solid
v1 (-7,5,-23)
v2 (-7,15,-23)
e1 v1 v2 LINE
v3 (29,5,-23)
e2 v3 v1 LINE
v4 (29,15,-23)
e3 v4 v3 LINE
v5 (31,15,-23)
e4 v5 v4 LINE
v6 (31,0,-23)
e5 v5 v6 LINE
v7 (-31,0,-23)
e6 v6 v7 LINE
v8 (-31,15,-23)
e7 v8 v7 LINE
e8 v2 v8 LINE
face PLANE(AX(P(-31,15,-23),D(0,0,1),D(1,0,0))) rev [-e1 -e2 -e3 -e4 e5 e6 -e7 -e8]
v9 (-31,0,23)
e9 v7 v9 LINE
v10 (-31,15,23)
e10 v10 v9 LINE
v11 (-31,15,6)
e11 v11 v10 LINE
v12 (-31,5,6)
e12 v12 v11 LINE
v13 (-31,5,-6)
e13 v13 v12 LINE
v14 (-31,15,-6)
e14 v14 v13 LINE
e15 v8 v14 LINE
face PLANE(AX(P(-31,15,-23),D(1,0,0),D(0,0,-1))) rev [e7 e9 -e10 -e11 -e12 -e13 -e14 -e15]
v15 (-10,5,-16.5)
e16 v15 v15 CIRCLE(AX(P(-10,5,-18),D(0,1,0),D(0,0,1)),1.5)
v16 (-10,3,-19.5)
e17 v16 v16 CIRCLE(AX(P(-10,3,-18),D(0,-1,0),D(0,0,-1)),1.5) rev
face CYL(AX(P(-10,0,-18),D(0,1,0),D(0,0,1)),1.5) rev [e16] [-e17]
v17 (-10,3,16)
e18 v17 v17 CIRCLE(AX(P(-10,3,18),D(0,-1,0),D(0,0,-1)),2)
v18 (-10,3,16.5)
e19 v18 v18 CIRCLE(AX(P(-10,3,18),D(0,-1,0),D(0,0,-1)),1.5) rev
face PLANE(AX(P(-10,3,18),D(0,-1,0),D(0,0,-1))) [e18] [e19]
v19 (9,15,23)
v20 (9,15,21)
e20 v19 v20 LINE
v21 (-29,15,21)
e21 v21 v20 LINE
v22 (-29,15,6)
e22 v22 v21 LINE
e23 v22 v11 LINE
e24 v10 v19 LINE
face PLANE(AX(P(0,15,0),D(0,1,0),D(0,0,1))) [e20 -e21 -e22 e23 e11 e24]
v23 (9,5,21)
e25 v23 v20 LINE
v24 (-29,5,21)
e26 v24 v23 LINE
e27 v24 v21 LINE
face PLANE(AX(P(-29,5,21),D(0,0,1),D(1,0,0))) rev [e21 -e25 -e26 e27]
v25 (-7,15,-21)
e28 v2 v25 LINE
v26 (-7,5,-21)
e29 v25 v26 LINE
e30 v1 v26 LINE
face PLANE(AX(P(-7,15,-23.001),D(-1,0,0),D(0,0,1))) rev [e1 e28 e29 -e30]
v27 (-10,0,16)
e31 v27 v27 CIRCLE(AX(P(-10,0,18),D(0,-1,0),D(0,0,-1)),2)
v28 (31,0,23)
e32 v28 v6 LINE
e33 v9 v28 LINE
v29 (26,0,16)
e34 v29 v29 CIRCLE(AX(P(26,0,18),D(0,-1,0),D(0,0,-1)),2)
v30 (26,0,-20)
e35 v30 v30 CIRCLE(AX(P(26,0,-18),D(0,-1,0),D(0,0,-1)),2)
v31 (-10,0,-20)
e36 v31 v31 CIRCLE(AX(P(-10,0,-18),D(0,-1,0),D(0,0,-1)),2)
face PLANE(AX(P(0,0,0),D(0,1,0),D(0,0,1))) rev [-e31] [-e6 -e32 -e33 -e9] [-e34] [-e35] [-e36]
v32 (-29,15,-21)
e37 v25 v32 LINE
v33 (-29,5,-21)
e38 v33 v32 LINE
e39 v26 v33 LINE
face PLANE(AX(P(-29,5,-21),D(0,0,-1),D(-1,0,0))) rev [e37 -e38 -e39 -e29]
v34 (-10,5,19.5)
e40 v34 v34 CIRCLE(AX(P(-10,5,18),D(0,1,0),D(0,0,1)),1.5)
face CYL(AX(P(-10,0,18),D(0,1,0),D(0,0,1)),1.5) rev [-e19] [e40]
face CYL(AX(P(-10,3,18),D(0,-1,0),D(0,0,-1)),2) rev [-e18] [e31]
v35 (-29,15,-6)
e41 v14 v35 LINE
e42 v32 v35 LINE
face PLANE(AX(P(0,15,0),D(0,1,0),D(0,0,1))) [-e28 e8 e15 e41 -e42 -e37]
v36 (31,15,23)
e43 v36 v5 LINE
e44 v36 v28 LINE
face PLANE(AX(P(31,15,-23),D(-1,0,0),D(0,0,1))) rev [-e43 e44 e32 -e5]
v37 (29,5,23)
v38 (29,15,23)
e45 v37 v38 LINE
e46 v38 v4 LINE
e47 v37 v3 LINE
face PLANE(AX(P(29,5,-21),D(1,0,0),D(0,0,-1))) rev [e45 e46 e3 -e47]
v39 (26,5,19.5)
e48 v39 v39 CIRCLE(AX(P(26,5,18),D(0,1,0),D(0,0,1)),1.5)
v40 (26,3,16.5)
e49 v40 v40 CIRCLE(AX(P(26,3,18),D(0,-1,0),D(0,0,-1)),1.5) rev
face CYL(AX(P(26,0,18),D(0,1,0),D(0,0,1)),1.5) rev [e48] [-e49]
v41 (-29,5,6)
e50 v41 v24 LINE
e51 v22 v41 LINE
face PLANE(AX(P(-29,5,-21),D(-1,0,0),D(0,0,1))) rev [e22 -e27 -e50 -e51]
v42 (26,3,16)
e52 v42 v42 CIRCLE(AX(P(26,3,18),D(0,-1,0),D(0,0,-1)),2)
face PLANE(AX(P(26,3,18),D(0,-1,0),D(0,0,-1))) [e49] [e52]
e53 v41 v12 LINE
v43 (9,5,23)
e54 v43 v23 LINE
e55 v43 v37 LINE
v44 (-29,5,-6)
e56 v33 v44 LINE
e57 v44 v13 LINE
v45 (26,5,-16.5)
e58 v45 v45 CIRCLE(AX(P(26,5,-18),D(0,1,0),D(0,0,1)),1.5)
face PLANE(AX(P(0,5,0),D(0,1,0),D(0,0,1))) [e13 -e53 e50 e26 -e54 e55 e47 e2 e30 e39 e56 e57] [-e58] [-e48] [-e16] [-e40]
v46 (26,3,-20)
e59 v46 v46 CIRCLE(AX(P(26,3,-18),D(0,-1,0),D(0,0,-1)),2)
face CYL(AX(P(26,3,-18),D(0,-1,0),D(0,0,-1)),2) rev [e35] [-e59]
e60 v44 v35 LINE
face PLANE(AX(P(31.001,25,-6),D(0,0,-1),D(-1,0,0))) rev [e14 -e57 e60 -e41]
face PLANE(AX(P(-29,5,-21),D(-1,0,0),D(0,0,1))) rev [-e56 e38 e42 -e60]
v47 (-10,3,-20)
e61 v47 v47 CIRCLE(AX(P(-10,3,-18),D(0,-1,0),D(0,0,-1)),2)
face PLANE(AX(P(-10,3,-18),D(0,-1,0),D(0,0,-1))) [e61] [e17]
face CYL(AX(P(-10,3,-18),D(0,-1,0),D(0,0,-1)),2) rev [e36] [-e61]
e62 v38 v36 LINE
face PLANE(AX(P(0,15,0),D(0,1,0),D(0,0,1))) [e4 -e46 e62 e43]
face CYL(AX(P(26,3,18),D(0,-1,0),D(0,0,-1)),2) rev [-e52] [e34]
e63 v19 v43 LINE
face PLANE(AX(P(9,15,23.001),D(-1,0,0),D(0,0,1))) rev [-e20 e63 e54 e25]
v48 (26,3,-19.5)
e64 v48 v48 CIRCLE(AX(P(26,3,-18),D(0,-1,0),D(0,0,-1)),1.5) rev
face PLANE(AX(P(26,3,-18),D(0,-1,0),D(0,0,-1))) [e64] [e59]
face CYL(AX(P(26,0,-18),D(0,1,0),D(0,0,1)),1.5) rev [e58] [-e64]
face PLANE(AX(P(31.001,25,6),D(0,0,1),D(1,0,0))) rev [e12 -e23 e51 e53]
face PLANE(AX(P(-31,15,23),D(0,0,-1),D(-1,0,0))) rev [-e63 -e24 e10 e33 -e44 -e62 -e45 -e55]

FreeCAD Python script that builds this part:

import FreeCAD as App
import Part
import Sketcher

V = App.Vector

doc = App.newDocument("Part")
body = doc.addObject("PartDesign::Body", "Body")

sketch1 = body.newObject("Sketcher::SketchObject", "Sketch")
sketch1.AttachmentSupport = (doc.getObject("XZ_Plane"), [""])
sketch1.MapMode = "FlatFace"
sketch1.addGeometry([
    Part.LineSegment(V(-31, -23, 0), V(-31, 23, 0)),
    Part.LineSegment(V(-31, 23, 0), V(31, 23, 0)),
    Part.LineSegment(V(31, 23, 0), V(31, -23, 0)),
    Part.LineSegment(V(31, -23, 0), V(-31, -23, 0)),
], False)
sketch1.addConstraint([
    Sketcher.Constraint("Coincident", 0, 2, 1, 1),
    Sketcher.Constraint("Coincident", 1, 2, 2, 1),
    Sketcher.Constraint("Coincident", 2, 2, 3, 1),
    Sketcher.Constraint("Coincident", 3, 2, 0, 1),
    Sketcher.Constraint("Vertical", 0),
    Sketcher.Constraint("Horizontal", 1),
    Sketcher.Constraint("Vertical", 2),
    Sketcher.Constraint("Horizontal", 3),
    Sketcher.Constraint("Symmetric", 0, 2, 2, 2, -1, 1),
    Sketcher.Constraint("DistanceX", 1, 1, 1, 2, 62.0),
    Sketcher.Constraint("DistanceY", 0, 1, 0, 2, 46.0),
])
pad1 = body.newObject("PartDesign::Pad", "Pad")
pad1.Profile = sketch1
pad1.Length = 15
pad1.Reversed = True

sketch2 = body.newObject("Sketcher::SketchObject", "Sketch001")
sketch2.AttachmentSupport = (doc.getObject("XZ_Plane"), [""])
sketch2.MapMode = "FlatFace"
sketch2.AttachmentOffset = App.Placement(V(0, 0, -15), App.Rotation())
sketch2.addGeometry([
    Part.LineSegment(V(-29, -21, 0), V(-29, 21, 0)),
    Part.LineSegment(V(-29, 21, 0), V(29, 21, 0)),
    Part.LineSegment(V(29, 21, 0), V(29, -21, 0)),
    Part.LineSegment(V(29, -21, 0), V(-29, -21, 0)),
], False)
sketch2.addConstraint([
    Sketcher.Constraint("Coincident", 0, 2, 1, 1),
    Sketcher.Constraint("Coincident", 1, 2, 2, 1),
    Sketcher.Constraint("Coincident", 2, 2, 3, 1),
    Sketcher.Constraint("Coincident", 3, 2, 0, 1),
    Sketcher.Constraint("Vertical", 0),
    Sketcher.Constraint("Horizontal", 1),
    Sketcher.Constraint("Vertical", 2),
    Sketcher.Constraint("Horizontal", 3),
    Sketcher.Constraint("Symmetric", 0, 2, 2, 2, -1, 1),
    Sketcher.Constraint("DistanceX", 1, 1, 1, 2, 58.0),
    Sketcher.Constraint("DistanceY", 0, 1, 0, 2, 42.0),
])
pocket1 = body.newObject("PartDesign::Pocket", "Pocket")
pocket1.Profile = sketch2
pocket1.Length = 10
pocket1.Reversed = True

sketch3 = body.newObject("Sketcher::SketchObject", "Sketch002")
sketch3.AttachmentSupport = (doc.getObject("YZ_Plane"), [""])
sketch3.MapMode = "FlatFace"
sketch3.AttachmentOffset = App.Placement(V(0, 0, -31), App.Rotation())
sketch3.addGeometry([
    Part.LineSegment(V(25, -6, 0), V(5, -6, 0)),
    Part.LineSegment(V(5, -6, 0), V(5, 6, 0)),
    Part.LineSegment(V(5, 6, 0), V(25, 6, 0)),
    Part.LineSegment(V(25, 6, 0), V(25, -6, 0)),
], False)
sketch3.addConstraint([
    Sketcher.Constraint("Coincident", 0, 2, 1, 1),
    Sketcher.Constraint("Coincident", 1, 2, 2, 1),
    Sketcher.Constraint("Coincident", 2, 2, 3, 1),
    Sketcher.Constraint("Coincident", 3, 2, 0, 1),
    Sketcher.Constraint("Horizontal", 0),
    Sketcher.Constraint("Vertical", 1),
    Sketcher.Constraint("Horizontal", 2),
    Sketcher.Constraint("Vertical", 3),
    Sketcher.Constraint("DistanceX", 0, 2, 0, 1, 20.0),
    Sketcher.Constraint("DistanceY", 1, 1, 1, 2, 12.0),
    Sketcher.Constraint("DistanceX", -1, 1, 0, 2, 5.0),
    Sketcher.Constraint("DistanceY", 0, 2, -1, 1, 6.0),
])
pocket2 = body.newObject("PartDesign::Pocket", "Pocket001")
pocket2.Profile = sketch3
pocket2.Type = "UpToFirst"
pocket2.Reversed = True

sketch4 = body.newObject("Sketcher::SketchObject", "Sketch003")
sketch4.AttachmentSupport = (doc.getObject("XY_Plane"), [""])
sketch4.MapMode = "FlatFace"
sketch4.AttachmentOffset = App.Placement(V(0, 0, -21), App.Rotation())
sketch4.addGeometry([
    Part.LineSegment(V(-7, 15, 0), V(-7, 5, 0)),
    Part.LineSegment(V(-7, 5, 0), V(29, 5, 0)),
    Part.LineSegment(V(29, 5, 0), V(29, 15, 0)),
    Part.LineSegment(V(29, 15, 0), V(-7, 15, 0)),
], False)
sketch4.addConstraint([
    Sketcher.Constraint("Coincident", 0, 2, 1, 1),
    Sketcher.Constraint("Coincident", 1, 2, 2, 1),
    Sketcher.Constraint("Coincident", 2, 2, 3, 1),
    Sketcher.Constraint("Coincident", 3, 2, 0, 1),
    Sketcher.Constraint("Vertical", 0),
    Sketcher.Constraint("Horizontal", 1),
    Sketcher.Constraint("Vertical", 2),
    Sketcher.Constraint("Horizontal", 3),
    Sketcher.Constraint("DistanceX", 1, 1, 1, 2, 36.0),
    Sketcher.Constraint("DistanceY", 0, 2, 0, 1, 10.0),
    Sketcher.Constraint("DistanceX", 0, 2, -1, 1, 7.0),
    Sketcher.Constraint("DistanceY", -1, 1, 0, 2, 5.0),
])
pocket3 = body.newObject("PartDesign::Pocket", "Pocket002")
pocket3.Profile = sketch4
pocket3.Type = "UpToFirst"

sketch5 = body.newObject("Sketcher::SketchObject", "Sketch004")
sketch5.AttachmentSupport = (doc.getObject("XY_Plane"), [""])
sketch5.MapMode = "FlatFace"
sketch5.AttachmentOffset = App.Placement(V(0, 0, 21), App.Rotation())
sketch5.addGeometry([
    Part.LineSegment(V(29, 15, 0), V(29, 5, 0)),
    Part.LineSegment(V(29, 5, 0), V(9, 5, 0)),
    Part.LineSegment(V(9, 5, 0), V(9, 15, 0)),
    Part.LineSegment(V(9, 15, 0), V(29, 15, 0)),
], False)
sketch5.addConstraint([
    Sketcher.Constraint("Coincident", 0, 2, 1, 1),
    Sketcher.Constraint("Coincident", 1, 2, 2, 1),
    Sketcher.Constraint("Coincident", 2, 2, 3, 1),
    Sketcher.Constraint("Coincident", 3, 2, 0, 1),
    Sketcher.Constraint("Vertical", 0),
    Sketcher.Constraint("Horizontal", 1),
    Sketcher.Constraint("Vertical", 2),
    Sketcher.Constraint("Horizontal", 3),
    Sketcher.Constraint("DistanceX", 1, 2, 1, 1, 20.0),
    Sketcher.Constraint("DistanceY", 0, 2, 0, 1, 10.0),
    Sketcher.Constraint("DistanceX", -1, 1, 0, 2, 29.0),
    Sketcher.Constraint("DistanceY", -1, 1, 0, 2, 5.0),
])
pocket4 = body.newObject("PartDesign::Pocket", "Pocket003")
pocket4.Profile = sketch5
pocket4.Type = "UpToFirst"
pocket4.Reversed = True

sketch6 = body.newObject("Sketcher::SketchObject", "Sketch005")
sketch6.AttachmentSupport = (doc.getObject("XZ_Plane"), [""])
sketch6.MapMode = "FlatFace"
sketch6.AttachmentOffset = App.Placement(V(0, 0, -5), App.Rotation())
sketch6.addGeometry([
    Part.Circle(V(26, 18, 0), V(0, 0, 1), 1.5),
    Part.Circle(V(26, -18, 0), V(0, 0, 1), 1.5),
    Part.Circle(V(-10, -18, 0), V(0, 0, 1), 1.5),
    Part.Circle(V(-10, 18, 0), V(0, 0, 1), 1.5),
], False)
sketch6.addConstraint([
    Sketcher.Constraint("Equal", 0, 1),
    Sketcher.Constraint("Equal", 1, 2),
    Sketcher.Constraint("Equal", 2, 3),
    Sketcher.Constraint("Symmetric", 0, 3, 1, 3, -1),
    Sketcher.Constraint("Symmetric", 2, 3, 3, 3, -1),
    Sketcher.Constraint("Horizontal", 1, 3, 2, 3),
    Sketcher.Constraint("Diameter", 0, 3.0),
    Sketcher.Constraint("DistanceX", -1, 1, 0, 3, 26.0),
    Sketcher.Constraint("DistanceY", -1, 1, 0, 3, 18.0),
    Sketcher.Constraint("DistanceX", 2, 3, -1, 1, 10.0),
])
pocket5 = body.newObject("PartDesign::Pocket", "Pocket004")
pocket5.Profile = sketch6
pocket5.Type = "ThroughAll"
pocket5.Reversed = True

sketch7 = body.newObject("Sketcher::SketchObject", "Sketch006")
sketch7.AttachmentSupport = (doc.getObject("XZ_Plane"), [""])
sketch7.MapMode = "FlatFace"
sketch7.addGeometry([
    Part.Circle(V(-10, 18, 0), V(0, 0, 1), 2),
    Part.Circle(V(26, 18, 0), V(0, 0, 1), 2),
    Part.Circle(V(26, -18, 0), V(0, 0, 1), 2),
    Part.Circle(V(-10, -18, 0), V(0, 0, 1), 2),
], False)
sketch7.addConstraint([
    Sketcher.Constraint("Equal", 0, 1),
    Sketcher.Constraint("Equal", 1, 2),
    Sketcher.Constraint("Equal", 2, 3),
    Sketcher.Constraint("Symmetric", 1, 3, 2, 3, -1),
    Sketcher.Constraint("Symmetric", 0, 3, 3, 3, -1),
    Sketcher.Constraint("Horizontal", 0, 3, 1, 3),
    Sketcher.Constraint("Diameter", 0, 4.0),
    Sketcher.Constraint("DistanceX", 0, 3, -1, 1, 10.0),
    Sketcher.Constraint("DistanceY", -1, 1, 0, 3, 18.0),
    Sketcher.Constraint("DistanceX", -1, 1, 1, 3, 26.0),
])
pocket6 = body.newObject("PartDesign::Pocket", "Pocket005")
pocket6.Profile = sketch7
pocket6.Length = 3

doc.recompute()
